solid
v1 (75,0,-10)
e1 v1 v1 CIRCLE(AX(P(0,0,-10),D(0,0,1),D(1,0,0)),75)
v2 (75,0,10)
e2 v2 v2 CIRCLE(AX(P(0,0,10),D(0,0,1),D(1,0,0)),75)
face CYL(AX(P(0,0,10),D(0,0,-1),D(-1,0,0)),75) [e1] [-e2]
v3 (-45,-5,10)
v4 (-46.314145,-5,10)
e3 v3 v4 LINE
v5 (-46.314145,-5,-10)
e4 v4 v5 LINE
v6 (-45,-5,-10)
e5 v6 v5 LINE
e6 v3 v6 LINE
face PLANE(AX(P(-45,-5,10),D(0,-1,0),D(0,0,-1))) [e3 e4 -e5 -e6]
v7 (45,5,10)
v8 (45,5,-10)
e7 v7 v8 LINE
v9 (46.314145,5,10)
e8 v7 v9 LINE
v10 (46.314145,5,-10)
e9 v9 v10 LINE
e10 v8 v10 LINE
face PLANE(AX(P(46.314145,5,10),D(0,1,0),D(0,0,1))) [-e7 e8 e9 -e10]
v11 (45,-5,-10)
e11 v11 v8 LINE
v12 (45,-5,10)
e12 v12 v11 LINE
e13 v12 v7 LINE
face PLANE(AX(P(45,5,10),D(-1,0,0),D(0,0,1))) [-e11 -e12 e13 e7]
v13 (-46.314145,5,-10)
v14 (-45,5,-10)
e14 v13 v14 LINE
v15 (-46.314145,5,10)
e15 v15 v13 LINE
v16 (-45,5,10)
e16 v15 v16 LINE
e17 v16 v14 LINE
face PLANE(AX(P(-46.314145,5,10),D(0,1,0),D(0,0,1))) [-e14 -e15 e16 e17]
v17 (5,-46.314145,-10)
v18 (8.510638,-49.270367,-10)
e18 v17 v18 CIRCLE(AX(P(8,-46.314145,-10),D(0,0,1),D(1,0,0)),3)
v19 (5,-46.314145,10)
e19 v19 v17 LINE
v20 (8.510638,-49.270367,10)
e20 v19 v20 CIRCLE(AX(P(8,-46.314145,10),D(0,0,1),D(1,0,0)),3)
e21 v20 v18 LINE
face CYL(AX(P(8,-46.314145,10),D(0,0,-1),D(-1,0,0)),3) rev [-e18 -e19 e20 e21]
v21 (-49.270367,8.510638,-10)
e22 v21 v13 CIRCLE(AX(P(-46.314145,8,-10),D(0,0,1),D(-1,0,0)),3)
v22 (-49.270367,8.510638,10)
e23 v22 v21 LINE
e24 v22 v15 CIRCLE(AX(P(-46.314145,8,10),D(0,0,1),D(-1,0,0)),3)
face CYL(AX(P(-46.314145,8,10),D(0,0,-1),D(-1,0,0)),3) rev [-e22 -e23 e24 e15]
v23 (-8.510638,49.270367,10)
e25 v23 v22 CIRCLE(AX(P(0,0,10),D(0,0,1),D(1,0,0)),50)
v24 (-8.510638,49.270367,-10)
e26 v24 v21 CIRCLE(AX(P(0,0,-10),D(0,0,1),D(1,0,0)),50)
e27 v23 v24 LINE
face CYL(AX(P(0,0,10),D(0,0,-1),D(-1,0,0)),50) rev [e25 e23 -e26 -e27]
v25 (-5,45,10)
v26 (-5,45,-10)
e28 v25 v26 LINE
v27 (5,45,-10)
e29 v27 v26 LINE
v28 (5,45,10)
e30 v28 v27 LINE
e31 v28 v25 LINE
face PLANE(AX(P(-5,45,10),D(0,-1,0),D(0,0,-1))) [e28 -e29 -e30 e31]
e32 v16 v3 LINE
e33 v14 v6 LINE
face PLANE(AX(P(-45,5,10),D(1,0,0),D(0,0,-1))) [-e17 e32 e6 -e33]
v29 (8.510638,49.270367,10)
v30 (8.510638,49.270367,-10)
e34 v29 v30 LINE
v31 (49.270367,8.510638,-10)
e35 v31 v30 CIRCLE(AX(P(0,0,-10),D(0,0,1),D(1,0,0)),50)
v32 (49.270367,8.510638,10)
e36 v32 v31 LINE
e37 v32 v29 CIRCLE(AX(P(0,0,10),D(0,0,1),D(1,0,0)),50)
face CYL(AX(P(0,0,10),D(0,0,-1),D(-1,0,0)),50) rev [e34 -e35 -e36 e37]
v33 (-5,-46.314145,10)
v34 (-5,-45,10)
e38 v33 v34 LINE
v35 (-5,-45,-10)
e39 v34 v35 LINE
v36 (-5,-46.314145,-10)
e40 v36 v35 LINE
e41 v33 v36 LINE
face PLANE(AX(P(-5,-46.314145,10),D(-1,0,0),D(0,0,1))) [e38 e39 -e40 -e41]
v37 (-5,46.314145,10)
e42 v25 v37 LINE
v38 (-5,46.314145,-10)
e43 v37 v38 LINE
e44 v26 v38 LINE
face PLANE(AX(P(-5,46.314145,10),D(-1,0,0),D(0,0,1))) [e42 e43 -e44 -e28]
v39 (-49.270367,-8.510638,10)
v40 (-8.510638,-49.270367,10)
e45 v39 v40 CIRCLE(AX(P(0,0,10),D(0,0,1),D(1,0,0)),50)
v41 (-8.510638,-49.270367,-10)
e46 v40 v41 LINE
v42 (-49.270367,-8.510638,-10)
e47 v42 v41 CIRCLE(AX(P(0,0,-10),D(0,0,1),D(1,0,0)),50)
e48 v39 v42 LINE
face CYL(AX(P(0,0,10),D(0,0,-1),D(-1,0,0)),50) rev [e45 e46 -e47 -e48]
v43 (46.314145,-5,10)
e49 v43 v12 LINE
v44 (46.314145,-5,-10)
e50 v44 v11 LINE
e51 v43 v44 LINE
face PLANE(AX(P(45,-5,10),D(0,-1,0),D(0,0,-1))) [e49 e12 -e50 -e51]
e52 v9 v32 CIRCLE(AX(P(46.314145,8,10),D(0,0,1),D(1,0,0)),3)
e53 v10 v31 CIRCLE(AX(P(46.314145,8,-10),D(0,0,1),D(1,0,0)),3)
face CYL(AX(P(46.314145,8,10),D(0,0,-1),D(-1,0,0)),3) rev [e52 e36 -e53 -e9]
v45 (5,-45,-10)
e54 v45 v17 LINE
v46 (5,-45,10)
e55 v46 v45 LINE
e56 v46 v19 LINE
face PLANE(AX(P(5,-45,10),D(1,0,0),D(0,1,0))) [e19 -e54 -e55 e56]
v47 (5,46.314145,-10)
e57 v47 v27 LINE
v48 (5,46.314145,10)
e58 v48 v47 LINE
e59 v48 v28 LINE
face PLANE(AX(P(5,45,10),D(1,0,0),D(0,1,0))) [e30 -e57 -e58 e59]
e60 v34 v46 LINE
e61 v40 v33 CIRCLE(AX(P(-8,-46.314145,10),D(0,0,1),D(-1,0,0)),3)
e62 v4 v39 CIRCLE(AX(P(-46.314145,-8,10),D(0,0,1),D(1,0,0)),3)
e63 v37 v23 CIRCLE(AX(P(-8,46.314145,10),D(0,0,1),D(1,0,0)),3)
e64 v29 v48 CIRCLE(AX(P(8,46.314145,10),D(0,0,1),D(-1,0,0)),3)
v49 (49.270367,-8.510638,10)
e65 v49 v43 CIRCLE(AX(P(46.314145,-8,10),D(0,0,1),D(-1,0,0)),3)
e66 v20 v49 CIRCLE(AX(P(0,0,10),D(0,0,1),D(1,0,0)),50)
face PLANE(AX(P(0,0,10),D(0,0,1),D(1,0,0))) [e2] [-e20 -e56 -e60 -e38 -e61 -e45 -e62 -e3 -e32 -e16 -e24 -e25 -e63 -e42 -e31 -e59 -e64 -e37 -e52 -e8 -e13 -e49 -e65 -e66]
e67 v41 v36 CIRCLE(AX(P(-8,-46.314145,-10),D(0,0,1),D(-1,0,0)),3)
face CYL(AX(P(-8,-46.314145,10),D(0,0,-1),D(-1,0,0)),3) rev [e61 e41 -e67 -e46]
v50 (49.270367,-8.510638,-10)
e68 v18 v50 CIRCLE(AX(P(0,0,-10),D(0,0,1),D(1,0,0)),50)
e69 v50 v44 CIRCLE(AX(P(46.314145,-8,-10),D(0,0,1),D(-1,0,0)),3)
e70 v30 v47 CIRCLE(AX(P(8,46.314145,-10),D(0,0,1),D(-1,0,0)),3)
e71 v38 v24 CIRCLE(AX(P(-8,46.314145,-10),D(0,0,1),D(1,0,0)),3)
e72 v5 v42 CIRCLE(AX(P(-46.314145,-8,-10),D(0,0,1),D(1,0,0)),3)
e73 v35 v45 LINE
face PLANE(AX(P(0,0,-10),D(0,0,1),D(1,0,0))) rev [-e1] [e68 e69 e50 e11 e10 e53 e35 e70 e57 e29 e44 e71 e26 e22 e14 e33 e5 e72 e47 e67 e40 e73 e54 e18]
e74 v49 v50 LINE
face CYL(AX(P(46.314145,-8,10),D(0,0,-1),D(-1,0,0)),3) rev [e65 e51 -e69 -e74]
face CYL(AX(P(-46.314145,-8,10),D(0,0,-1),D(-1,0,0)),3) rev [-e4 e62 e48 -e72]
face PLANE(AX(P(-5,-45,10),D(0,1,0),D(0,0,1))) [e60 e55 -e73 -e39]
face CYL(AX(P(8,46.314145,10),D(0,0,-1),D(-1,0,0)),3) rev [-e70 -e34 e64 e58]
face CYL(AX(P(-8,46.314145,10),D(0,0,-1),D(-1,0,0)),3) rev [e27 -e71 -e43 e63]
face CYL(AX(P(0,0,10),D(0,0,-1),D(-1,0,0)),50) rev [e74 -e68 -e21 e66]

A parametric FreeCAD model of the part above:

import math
import FreeCAD as App
import Part
import Sketcher
from FreeCAD import Vector
Q = App.Units.Quantity

doc = App.newDocument("Part")
body = doc.addObject("PartDesign::Body", "Body")

# Sketch on XY plane
sketch1 = body.newObject("Sketcher::SketchObject", "Sketch")
sketch1.AttachmentSupport = (doc.getObject("XY_Plane"), [""])
sketch1.MapMode = "FlatFace"
sketch1.addGeometry(Part.Circle(Vector(0, 0, 0), Vector(0, 0, 1), 75), False)
sketch1.addGeometry(Part.ArcOfCircle(Part.Circle(Vector(-8, 46.3, 0), Vector(0, 0, 1), 3), math.radians(0), math.radians(100)), False)
sketch1.addGeometry(Part.LineSegment(Vector(-5, 46.3, 0), Vector(-5, 45, 0)), False)
sketch1.addGeometry(Part.LineSegment(Vector(-5, 45, 0), Vector(5, 45, 0)), False)
sketch1.addGeometry(Part.LineSegment(Vector(5, 45, 0), Vector(5, 46.3, 0)), False)
sketch1.addGeometry(Part.ArcOfCircle(Part.Circle(Vector(8, 46.3, 0), Vector(0, 0, 1), 3), math.radians(80), math.radians(180)), False)
sketch1.addGeometry(Part.ArcOfCircle(Part.Circle(Vector(0, 0, 0), Vector(0, 0, 1), 50), math.radians(10), math.radians(80)), False)
sketch1.addGeometry(Part.ArcOfCircle(Part.Circle(Vector(46.3, 8, 0), Vector(0, 0, 1), 3), math.radians(-90), math.radians(10)), False)
sketch1.addGeometry(Part.LineSegment(Vector(46.3, 5, 0), Vector(45, 5, 0)), False)
sketch1.addGeometry(Part.LineSegment(Vector(45, 5, 0), Vector(45, -5, 0)), False)
sketch1.addGeometry(Part.LineSegment(Vector(45, -5, 0), Vector(46.3, -5, 0)), False)
sketch1.addGeometry(Part.ArcOfCircle(Part.Circle(Vector(46.3, -8, 0), Vector(0, 0, 1), 3), math.radians(-10), math.radians(90)), False)
sketch1.addGeometry(Part.ArcOfCircle(Part.Circle(Vector(0, 0, 0), Vector(0, 0, 1), 50), math.radians(-80), math.radians(-10)), False)
sketch1.addGeometry(Part.ArcOfCircle(Part.Circle(Vector(8, -46.3, 0), Vector(0, 0, 1), 3), math.radians(180), math.radians(280)), False)
sketch1.addGeometry(Part.LineSegment(Vector(5, -46.3, 0), Vector(5, -45, 0)), False)
sketch1.addGeometry(Part.LineSegment(Vector(5, -45, 0), Vector(-5, -45, 0)), False)
sketch1.addGeometry(Part.LineSegment(Vector(-5, -45, 0), Vector(-5, -46.3, 0)), False)
sketch1.addGeometry(Part.ArcOfCircle(Part.Circle(Vector(-8, -46.3, 0), Vector(0, 0, 1), 3), math.radians(-100), math.radians(0)), False)
sketch1.addGeometry(Part.ArcOfCircle(Part.Circle(Vector(0, 0, 0), Vector(0, 0, 1), 50), math.radians(-170), math.radians(-100)), False)
sketch1.addGeometry(Part.ArcOfCircle(Part.Circle(Vector(-46.3, -8, 0), Vector(0, 0, 1), 3), math.radians(90), math.radians(190)), False)
sketch1.addGeometry(Part.LineSegment(Vector(-46.3, -5, 0), Vector(-45, -5, 0)), False)
sketch1.addGeometry(Part.LineSegment(Vector(-45, -5, 0), Vector(-45, 5, 0)), False)
sketch1.addGeometry(Part.LineSegment(Vector(-45, 5, 0), Vector(-46.3, 5, 0)), False)
sketch1.addGeometry(Part.ArcOfCircle(Part.Circle(Vector(-46.3, 8, 0), Vector(0, 0, 1), 3), math.radians(170), math.radians(270)), False)
sketch1.addGeometry(Part.ArcOfCircle(Part.Circle(Vector(0, 0, 0), Vector(0, 0, 1), 50), math.radians(100), math.radians(170)), False)
sketch1.addConstraint(Sketcher.Constraint("Tangent", 1, 1, 2, 1))
sketch1.addConstraint(Sketcher.Constraint("Coincident", 2, 2, 3, 1))
sketch1.addConstraint(Sketcher.Constraint("Coincident", 3, 2, 4, 1))
sketch1.addConstraint(Sketcher.Constraint("Tangent", 4, 2, 5, 2))
sketch1.addConstraint(Sketcher.Constraint("Tangent", 5, 1, 6, 2))
sketch1.addConstraint(Sketcher.Constraint("Tangent", 6, 1, 7, 2))
sketch1.addConstraint(Sketcher.Constraint("Tangent", 7, 1, 8, 1))
sketch1.addConstraint(Sketcher.Constraint("Coincident", 8, 2, 9, 1))
sketch1.addConstraint(Sketcher.Constraint("Coincident", 9, 2, 10, 1))
sketch1.addConstraint(Sketcher.Constraint("Tangent", 10, 2, 11, 2))
sketch1.addConstraint(Sketcher.Constraint("Tangent", 11, 1, 12, 2))
sketch1.addConstraint(Sketcher.Constraint("Tangent", 12, 1, 13, 2))
sketch1.addConstraint(Sketcher.Constraint("Tangent", 13, 1, 14, 1))
sketch1.addConstraint(Sketcher.Constraint("Coincident", 14, 2, 15, 1))
sketch1.addConstraint(Sketcher.Constraint("Coincident", 15, 2, 16, 1))
sketch1.addConstraint(Sketcher.Constraint("Tangent", 16, 2, 17, 2))
sketch1.addConstraint(Sketcher.Constraint("Tangent", 17, 1, 18, 2))
sketch1.addConstraint(Sketcher.Constraint("Tangent", 18, 1, 19, 2))
sketch1.addConstraint(Sketcher.Constraint("Tangent", 19, 1, 20, 1))
sketch1.addConstraint(Sketcher.Constraint("Coincident", 20, 2, 21, 1))
sketch1.addConstraint(Sketcher.Constraint("Coincident", 21, 2, 22, 1))
sketch1.addConstraint(Sketcher.Constraint("Tangent", 22, 2, 23, 2))
sketch1.addConstraint(Sketcher.Constraint("Tangent", 23, 1, 24, 2))
sketch1.addConstraint(Sketcher.Constraint("Tangent", 24, 1, 1, 2))
sketch1.addConstraint(Sketcher.Constraint("Vertical", 2))
sketch1.addConstraint(Sketcher.Constraint("Horizontal", 3))
sketch1.addConstraint(Sketcher.Constraint("Vertical", 4))
sketch1.addConstraint(Sketcher.Constraint("Horizontal", 8))
sketch1.addConstraint(Sketcher.Constraint("Vertical", 9))
sketch1.addConstraint(Sketcher.Constraint("Horizontal", 10))
sketch1.addConstraint(Sketcher.Constraint("Vertical", 14))
sketch1.addConstraint(Sketcher.Constraint("Horizontal", 15))
sketch1.addConstraint(Sketcher.Constraint("Vertical", 16))
sketch1.addConstraint(Sketcher.Constraint("Horizontal", 20))
sketch1.addConstraint(Sketcher.Constraint("Vertical", 21))
sketch1.addConstraint(Sketcher.Constraint("Horizontal", 22))
sketch1.addConstraint(Sketcher.Constraint("Coincident", 0, 3, -1, 1))
sketch1.addConstraint(Sketcher.Constraint("Coincident", 6, 3, -1, 1))
sketch1.addConstraint(Sketcher.Constraint("Coincident", 12, 3, -1, 1))
sketch1.addConstraint(Sketcher.Constraint("Coincident", 18, 3, -1, 1))
sketch1.addConstraint(Sketcher.Constraint("Coincident", 24, 3, -1, 1))
sketch1.addConstraint(Sketcher.Constraint("Equal", 1, 5))
sketch1.addConstraint(Sketcher.Constraint("Equal", 5, 7))
sketch1.addConstraint(Sketcher.Constraint("Equal", 7, 11))
sketch1.addConstraint(Sketcher.Constraint("Equal", 6, 12))
sketch1.addConstraint(Sketcher.Constraint("Equal", 11, 13))
sketch1.addConstraint(Sketcher.Constraint("Equal", 13, 17))
sketch1.addConstraint(Sketcher.Constraint("Equal", 12, 18))
sketch1.addConstraint(Sketcher.Constraint("Equal", 17, 19))
sketch1.addConstraint(Sketcher.Constraint("Equal", 19, 23))
sketch1.addConstraint(Sketcher.Constraint("Equal", 18, 24))
sketch1.addConstraint(Sketcher.Constraint("Symmetric", 2, 2, 14, 2, -1, 1))
sketch1.addConstraint(Sketcher.Constraint("Symmetric", 8, 2, 20, 2, -1, 1))
sketch1.addConstraint(Sketcher.Constraint("Horizontal", 1, 3, 5, 3))
sketch1.addConstraint(Sketcher.Constraint("Horizontal", 13, 3, 17, 3))
sketch1.addConstraint(Sketcher.Constraint("Horizontal", 11, 3, 19, 3))
sketch1.addConstraint(Sketcher.Constraint("Horizontal", 7, 3, 23, 3))
sketch1.addConstraint(Sketcher.Constraint("Equal", 22, 2))
sketch1.addConstraint(Sketcher.Constraint("Equal", 15, 9))
sketch1.addConstraint(Sketcher.Constraint("Diameter", 0, Q("150 mm")))
sketch1.addConstraint(Sketcher.Constraint("Radius", 1, Q("3 mm")))
sketch1.addConstraint(Sketcher.Constraint("Radius", 6, Q("50 mm")))
sketch1.addConstraint(Sketcher.Constraint("DistanceX", 3, 1, 3, 2, Q("10 mm")))
sketch1.addConstraint(Sketcher.Constraint("DistanceY", -1, 1, 2, 2, Q("45 mm")))
pad1 = body.newObject("PartDesign::Pad", "Pad")
pad1.Profile = sketch1
pad1.Length = 20
pad1.Midplane = True

doc.recompute()
